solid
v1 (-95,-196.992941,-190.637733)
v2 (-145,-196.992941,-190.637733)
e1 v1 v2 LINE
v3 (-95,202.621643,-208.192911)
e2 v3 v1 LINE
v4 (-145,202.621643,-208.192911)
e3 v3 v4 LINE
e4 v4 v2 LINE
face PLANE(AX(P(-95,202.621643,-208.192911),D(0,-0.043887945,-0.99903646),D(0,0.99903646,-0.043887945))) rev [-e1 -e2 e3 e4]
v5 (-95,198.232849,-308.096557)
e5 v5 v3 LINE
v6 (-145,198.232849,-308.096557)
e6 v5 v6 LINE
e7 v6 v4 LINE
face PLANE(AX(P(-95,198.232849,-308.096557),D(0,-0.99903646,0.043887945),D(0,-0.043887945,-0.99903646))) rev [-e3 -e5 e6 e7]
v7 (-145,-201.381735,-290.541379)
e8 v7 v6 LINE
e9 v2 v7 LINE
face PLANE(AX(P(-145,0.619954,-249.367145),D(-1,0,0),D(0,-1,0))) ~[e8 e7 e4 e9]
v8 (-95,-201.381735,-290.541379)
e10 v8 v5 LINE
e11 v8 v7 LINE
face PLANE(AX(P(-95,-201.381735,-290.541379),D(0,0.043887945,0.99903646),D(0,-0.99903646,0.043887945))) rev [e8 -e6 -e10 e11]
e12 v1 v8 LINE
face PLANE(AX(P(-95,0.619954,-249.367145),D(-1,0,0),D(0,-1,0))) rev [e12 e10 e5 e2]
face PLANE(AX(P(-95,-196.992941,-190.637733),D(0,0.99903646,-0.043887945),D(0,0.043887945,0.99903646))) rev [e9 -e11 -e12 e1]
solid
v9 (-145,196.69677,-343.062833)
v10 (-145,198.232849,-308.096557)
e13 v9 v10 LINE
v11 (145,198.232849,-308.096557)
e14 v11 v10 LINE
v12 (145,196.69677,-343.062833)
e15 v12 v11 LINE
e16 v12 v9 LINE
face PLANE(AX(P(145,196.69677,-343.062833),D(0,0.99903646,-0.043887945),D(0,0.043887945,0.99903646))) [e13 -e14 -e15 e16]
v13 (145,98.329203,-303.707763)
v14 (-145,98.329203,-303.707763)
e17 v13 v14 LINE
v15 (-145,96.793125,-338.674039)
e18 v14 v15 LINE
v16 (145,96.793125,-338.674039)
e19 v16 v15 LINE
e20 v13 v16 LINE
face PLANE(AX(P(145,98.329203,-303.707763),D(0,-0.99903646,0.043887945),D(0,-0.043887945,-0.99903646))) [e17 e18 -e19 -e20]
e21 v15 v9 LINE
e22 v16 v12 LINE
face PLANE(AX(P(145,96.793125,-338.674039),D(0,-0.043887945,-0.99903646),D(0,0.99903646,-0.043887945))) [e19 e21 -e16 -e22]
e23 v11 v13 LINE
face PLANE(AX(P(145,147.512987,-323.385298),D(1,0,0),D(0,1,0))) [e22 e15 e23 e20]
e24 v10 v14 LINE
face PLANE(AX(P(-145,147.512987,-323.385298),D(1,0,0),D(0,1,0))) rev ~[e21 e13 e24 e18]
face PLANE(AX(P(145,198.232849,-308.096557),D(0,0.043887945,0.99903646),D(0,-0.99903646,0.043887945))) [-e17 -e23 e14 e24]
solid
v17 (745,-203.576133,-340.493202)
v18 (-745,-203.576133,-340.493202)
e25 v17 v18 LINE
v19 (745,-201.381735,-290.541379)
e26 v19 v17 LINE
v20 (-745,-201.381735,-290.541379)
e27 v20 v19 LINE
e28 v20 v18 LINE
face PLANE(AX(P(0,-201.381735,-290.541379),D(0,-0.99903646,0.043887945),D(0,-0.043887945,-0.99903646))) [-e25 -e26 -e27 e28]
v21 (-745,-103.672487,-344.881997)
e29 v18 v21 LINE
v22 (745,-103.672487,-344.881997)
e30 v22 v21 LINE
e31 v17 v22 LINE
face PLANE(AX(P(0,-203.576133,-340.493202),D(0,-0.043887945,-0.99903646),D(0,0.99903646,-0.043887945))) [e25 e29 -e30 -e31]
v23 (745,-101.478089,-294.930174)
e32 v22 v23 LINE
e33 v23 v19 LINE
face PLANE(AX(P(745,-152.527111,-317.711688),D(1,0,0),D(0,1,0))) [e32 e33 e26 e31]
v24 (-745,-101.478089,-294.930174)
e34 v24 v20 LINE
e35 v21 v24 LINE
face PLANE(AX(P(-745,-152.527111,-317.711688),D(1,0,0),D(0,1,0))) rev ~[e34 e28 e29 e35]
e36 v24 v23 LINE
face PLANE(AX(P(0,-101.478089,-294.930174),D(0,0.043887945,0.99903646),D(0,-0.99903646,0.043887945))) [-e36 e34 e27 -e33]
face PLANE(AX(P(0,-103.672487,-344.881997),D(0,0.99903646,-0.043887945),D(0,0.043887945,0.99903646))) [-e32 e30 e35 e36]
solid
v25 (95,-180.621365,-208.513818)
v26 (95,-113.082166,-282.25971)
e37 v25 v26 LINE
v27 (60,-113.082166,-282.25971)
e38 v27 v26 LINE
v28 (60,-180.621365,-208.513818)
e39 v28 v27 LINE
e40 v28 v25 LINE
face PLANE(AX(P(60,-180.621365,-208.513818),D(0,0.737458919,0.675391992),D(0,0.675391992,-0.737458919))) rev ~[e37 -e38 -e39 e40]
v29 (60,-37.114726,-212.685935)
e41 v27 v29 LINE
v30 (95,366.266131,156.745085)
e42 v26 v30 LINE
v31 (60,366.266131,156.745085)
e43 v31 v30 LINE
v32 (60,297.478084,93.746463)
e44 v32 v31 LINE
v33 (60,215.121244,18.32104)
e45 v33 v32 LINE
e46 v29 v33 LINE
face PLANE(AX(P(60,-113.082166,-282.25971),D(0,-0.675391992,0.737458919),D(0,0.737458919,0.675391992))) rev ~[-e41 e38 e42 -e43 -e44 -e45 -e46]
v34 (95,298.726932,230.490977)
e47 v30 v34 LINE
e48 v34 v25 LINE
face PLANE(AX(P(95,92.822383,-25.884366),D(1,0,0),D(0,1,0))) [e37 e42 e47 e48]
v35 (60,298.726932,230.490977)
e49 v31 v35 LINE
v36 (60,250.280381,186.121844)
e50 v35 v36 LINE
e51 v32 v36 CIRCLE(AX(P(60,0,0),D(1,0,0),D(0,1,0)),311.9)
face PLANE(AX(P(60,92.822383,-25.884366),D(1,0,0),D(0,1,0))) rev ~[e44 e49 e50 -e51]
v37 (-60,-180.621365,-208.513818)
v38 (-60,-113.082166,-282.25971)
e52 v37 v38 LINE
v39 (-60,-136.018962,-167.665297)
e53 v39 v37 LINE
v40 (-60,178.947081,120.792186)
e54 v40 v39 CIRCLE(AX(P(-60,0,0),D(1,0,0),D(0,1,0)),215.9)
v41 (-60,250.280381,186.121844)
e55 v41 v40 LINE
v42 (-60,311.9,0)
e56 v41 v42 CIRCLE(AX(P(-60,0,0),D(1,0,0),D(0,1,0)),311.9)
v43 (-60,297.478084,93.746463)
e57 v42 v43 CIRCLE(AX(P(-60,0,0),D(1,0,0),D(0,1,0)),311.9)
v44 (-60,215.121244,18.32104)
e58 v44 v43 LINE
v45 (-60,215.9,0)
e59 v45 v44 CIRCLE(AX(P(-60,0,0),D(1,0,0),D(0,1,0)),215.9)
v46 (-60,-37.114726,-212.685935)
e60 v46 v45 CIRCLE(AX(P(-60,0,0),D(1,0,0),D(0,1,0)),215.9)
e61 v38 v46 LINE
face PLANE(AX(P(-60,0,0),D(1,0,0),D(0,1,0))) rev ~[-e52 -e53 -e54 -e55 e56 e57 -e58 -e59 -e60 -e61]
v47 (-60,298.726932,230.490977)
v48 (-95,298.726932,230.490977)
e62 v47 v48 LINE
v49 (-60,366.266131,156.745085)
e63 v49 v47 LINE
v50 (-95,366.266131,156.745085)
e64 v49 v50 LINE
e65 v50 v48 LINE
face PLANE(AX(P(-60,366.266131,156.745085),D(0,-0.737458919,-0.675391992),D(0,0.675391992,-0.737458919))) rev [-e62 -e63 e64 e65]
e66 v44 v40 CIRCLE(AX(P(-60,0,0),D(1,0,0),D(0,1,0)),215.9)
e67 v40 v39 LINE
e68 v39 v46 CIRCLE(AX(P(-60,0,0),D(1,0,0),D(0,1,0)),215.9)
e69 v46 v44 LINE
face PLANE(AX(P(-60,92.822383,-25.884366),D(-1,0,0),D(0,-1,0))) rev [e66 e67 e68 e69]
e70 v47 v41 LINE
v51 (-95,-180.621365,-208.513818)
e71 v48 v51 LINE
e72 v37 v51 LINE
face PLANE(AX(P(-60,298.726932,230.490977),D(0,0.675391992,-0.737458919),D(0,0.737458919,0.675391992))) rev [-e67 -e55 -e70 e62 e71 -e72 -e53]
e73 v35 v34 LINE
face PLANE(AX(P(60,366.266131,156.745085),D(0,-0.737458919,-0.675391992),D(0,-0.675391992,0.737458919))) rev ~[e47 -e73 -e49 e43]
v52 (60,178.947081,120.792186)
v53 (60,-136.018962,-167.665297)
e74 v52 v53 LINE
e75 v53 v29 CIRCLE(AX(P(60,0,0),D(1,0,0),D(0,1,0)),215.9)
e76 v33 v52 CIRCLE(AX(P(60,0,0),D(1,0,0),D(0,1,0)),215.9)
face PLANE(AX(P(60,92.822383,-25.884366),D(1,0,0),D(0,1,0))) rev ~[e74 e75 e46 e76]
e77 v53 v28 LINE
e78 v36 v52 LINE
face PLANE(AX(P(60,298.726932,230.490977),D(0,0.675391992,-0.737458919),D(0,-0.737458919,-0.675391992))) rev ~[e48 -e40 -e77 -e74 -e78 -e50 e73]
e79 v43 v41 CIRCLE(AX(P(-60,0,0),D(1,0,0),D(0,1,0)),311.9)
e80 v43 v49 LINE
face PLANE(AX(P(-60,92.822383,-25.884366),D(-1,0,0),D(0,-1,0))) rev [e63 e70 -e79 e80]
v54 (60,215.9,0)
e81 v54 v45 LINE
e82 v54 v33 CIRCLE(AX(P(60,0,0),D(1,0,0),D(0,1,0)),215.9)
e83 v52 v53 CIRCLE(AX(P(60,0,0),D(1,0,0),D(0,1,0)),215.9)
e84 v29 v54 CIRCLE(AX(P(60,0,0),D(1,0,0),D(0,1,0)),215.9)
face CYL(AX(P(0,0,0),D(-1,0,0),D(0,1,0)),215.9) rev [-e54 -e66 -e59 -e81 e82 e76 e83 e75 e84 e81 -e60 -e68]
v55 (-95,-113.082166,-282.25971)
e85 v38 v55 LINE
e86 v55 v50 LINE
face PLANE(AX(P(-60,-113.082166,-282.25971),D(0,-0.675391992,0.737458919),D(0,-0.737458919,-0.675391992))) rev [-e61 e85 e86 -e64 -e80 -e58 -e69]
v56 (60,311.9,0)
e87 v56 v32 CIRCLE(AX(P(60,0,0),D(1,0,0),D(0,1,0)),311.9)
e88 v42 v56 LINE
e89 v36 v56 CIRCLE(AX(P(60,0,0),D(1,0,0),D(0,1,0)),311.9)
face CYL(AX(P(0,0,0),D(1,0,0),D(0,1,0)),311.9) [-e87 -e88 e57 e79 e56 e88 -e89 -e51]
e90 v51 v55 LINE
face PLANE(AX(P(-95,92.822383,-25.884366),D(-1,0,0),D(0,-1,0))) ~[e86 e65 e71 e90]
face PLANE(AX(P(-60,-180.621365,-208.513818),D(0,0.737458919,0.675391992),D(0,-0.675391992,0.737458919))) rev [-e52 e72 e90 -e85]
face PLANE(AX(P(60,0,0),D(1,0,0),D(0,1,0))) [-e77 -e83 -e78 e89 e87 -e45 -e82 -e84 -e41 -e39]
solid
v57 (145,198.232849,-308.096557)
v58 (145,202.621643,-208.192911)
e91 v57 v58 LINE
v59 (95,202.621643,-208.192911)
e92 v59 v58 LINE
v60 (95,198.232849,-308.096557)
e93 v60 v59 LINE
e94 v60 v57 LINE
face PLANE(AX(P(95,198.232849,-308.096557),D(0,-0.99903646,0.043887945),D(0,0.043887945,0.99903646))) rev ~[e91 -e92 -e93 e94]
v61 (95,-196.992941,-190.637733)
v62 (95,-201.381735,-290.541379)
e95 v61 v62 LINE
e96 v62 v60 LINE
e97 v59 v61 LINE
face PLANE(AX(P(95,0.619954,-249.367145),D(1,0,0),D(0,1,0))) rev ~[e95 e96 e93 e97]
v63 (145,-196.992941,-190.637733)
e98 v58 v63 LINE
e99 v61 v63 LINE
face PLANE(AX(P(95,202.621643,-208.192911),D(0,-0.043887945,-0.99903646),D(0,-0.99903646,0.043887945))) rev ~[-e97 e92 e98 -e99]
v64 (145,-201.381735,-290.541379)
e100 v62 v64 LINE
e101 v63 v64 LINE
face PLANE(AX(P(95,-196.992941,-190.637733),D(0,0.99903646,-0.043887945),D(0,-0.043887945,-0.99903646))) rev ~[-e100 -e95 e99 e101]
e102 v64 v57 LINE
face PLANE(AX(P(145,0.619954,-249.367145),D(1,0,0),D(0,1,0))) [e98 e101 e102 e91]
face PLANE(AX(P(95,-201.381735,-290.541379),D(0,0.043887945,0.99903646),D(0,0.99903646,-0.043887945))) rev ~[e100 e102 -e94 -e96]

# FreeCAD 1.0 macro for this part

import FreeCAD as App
import Part
import Sketcher
Q = App.Units.Quantity

doc = App.newDocument("Part")
body = doc.addObject("PartDesign::Body", "Body")

# Sketch on YZ plane
sketch1 = doc.addObject("Sketcher::SketchObject", "Sketch")
body.addObject(sketch1)
sketch1.AttachmentSupport = (doc.YZ_Plane, [""])
sketch1.MapMode = "FlatFace"
sketch1.addGeometry([
    Part.Circle(App.Vector(0, 0, 0), App.Vector(0, 0, 1), 312),
    Part.Circle(App.Vector(0, 0, 0), App.Vector(0, 0, 1), 216),
], False)
sketch1.addConstraint([
    Sketcher.Constraint("Coincident", 0, 3, -1, 1),
    Sketcher.Constraint("Coincident", 1, 3, -1, 1),
    Sketcher.Constraint("Diameter", 0, Q("623.8 mm")),
    Sketcher.Constraint("Diameter", 1, Q("431.8 mm")),
])
pad1 = doc.addObject("PartDesign::Pad", "Pad")
body.addObject(pad1)
pad1.Profile = sketch1
pad1.Length = 120
pad1.Midplane = True
body2 = doc.addObject("PartDesign::Body", "Body001")

# Sketch on YZ plane
sketch2 = doc.addObject("Sketcher::SketchObject", "Sketch001")
body2.addObject(sketch2)
sketch2.AttachmentSupport = (doc.getObject("YZ_Plane001"), [""])
sketch2.MapMode = "FlatFace"
sketch2.addGeometry([
    Part.LineSegment(App.Vector(-104, -345, 0), App.Vector(-101, -295, 0)),
    Part.LineSegment(App.Vector(-101, -295, 0), App.Vector(-201, -291, 0)),
    Part.LineSegment(App.Vector(-201, -291, 0), App.Vector(-204, -340, 0)),
    Part.LineSegment(App.Vector(-204, -340, 0), App.Vector(-104, -345, 0)),
], False)
sketch2.addConstraint([
    Sketcher.Constraint("Coincident", 0, 2, 1, 1),
    Sketcher.Constraint("Coincident", 1, 2, 2, 1),
    Sketcher.Constraint("Coincident", 2, 2, 3, 1),
    Sketcher.Constraint("Coincident", 3, 2, 0, 1),
    Sketcher.Constraint("Perpendicular", 0, 1),
    Sketcher.Constraint("Perpendicular", 1, 2),
    Sketcher.Constraint("Perpendicular", 2, 3),
    Sketcher.Constraint("Distance", 0, Q("50 mm")),
    Sketcher.Constraint("Distance", 1, Q("100 mm")),
    Sketcher.Constraint("DistanceX", 0, 2, -1, 1, Q("101.478089 mm")),
    Sketcher.Constraint("DistanceY", 1, 2, -1, 1, Q("290.541379 mm")),
    Sketcher.Constraint("DistanceY", 2, 2, 0, 2, Q("45.563028 mm")),
])
pad2 = doc.addObject("PartDesign::Pad", "Pad001")
body2.addObject(pad2)
pad2.Profile = sketch2
pad2.Length = 1490
pad2.Midplane = True
body3 = doc.addObject("PartDesign::Body", "Body002")

# Sketch on YZ plane
sketch3 = doc.addObject("Sketcher::SketchObject", "Sketch002")
body3.addObject(sketch3)
sketch3.AttachmentSupport = (doc.getObject("YZ_Plane002"), [""])
sketch3.MapMode = "FlatFace"
sketch3.AttachmentOffset = App.Placement(App.Vector(0, 0, 60), App.Rotation())
sketch3.addGeometry([
    Part.LineSegment(App.Vector(299, 230, 0), App.Vector(-181, -209, 0)),
    Part.LineSegment(App.Vector(-181, -209, 0), App.Vector(-113, -282, 0)),
    Part.LineSegment(App.Vector(-113, -282, 0), App.Vector(366, 157, 0)),
    Part.LineSegment(App.Vector(366, 157, 0), App.Vector(299, 230, 0)),
], False)
sketch3.addConstraint([
    Sketcher.Constraint("Coincident", 0, 2, 1, 1),
    Sketcher.Constraint("Coincident", 1, 2, 2, 1),
    Sketcher.Constraint("Coincident", 2, 2, 3, 1),
    Sketcher.Constraint("Coincident", 3, 2, 0, 1),
    Sketcher.Constraint("Perpendicular", 0, 1),
    Sketcher.Constraint("Perpendicular", 1, 2),
    Sketcher.Constraint("Perpendicular", 2, 3),
    Sketcher.Constraint("Distance", 0, Q("650 mm")),
    Sketcher.Constraint("Distance", 1, Q("100 mm")),
    Sketcher.Constraint("DistanceX", 0, 2, 1, 2, Q("67.539199 mm")),
    Sketcher.Constraint("DistanceY", 1, 2, -1, 1, Q("282.25971 mm")),
    Sketcher.Constraint("DistanceX", -1, 1, 2, 2, Q("366.266131 mm")),
])
pad3 = doc.addObject("PartDesign::Pad", "Pad002")
body3.addObject(pad3)
pad3.Profile = sketch3
pad3.Length = 35
doc.recompute()

body4 = doc.addObject("PartDesign::Body", "Body003")
body4.BaseFeature = body3
boolean = doc.addObject("PartDesign::Boolean", "Boolean")
body.addObject(boolean)
boolean.Type = "Fuse"
boolean.addObjects([body4])
doc.recompute()

mirroring = doc.addObject("Part::Mirroring", "Mirroring")
mirroring.Source = body3
mirroring.Base = App.Vector(0, 0, 0)
mirroring.Normal = App.Vector(1, 0, 0)
body5 = doc.addObject("PartDesign::Body", "Body004")
body5.BaseFeature = mirroring
boolean2 = doc.addObject("PartDesign::Boolean", "Boolean001")
body.addObject(boolean2)
boolean2.Type = "Fuse"
boolean2.addObjects([body5])
doc.recompute()
body6 = doc.addObject("PartDesign::Body", "Body005")

# Sketch on YZ plane
sketch4 = doc.addObject("Sketcher::SketchObject", "Sketch003")
body6.addObject(sketch4)
sketch4.AttachmentSupport = (doc.getObject("YZ_Plane005"), [""])
sketch4.MapMode = "FlatFace"
sketch4.AttachmentOffset = App.Placement(App.Vector(0, 0, 95), App.Rotation())
sketch4.addGeometry([
    Part.LineSegment(App.Vector(-201, -291, 0), App.Vector(198, -308, 0)),
    Part.LineSegment(App.Vector(198, -308, 0), App.Vector(203, -208, 0)),
    Part.LineSegment(App.Vector(203, -208, 0), App.Vector(-197, -191, 0)),
    Part.LineSegment(App.Vector(-197, -191, 0), App.Vector(-201, -291, 0)),
], False)
sketch4.addConstraint([
    Sketcher.Constraint("Coincident", 0, 2, 1, 1),
    Sketcher.Constraint("Coincident", 1, 2, 2, 1),
    Sketcher.Constraint("Coincident", 2, 2, 3, 1),
    Sketcher.Constraint("Coincident", 3, 2, 0, 1),
    Sketcher.Constraint("Perpendicular", 0, 1),
    Sketcher.Constraint("Perpendicular", 1, 2),
    Sketcher.Constraint("Perpendicular", 2, 3),
    Sketcher.Constraint("Distance", 0, Q("400 mm")),
    Sketcher.Constraint("Distance", 1, Q("100 mm")),
    Sketcher.Constraint("DistanceX", -1, 1, 0, 2, Q("198.232849 mm")),
    Sketcher.Constraint("DistanceY", 1, 2, -1, 1, Q("208.192911 mm")),
    Sketcher.Constraint("DistanceX", 2, 2, -1, 1, Q("196.992941 mm")),
])
pad4 = doc.addObject("PartDesign::Pad", "Pad003")
body6.addObject(pad4)
pad4.Profile = sketch4
pad4.Length = 50
body7 = doc.addObject("PartDesign::Body", "Body006")
doc.recompute()

mirroring2 = doc.addObject("Part::Mirroring", "Mirroring001")
mirroring2.Source = body6
mirroring2.Base = App.Vector(0, 0, 0)
mirroring2.Normal = App.Vector(1, 0, 0)
body7.BaseFeature = mirroring2
doc.recompute()
body8 = doc.addObject("PartDesign::Body", "Body007")

# Sketch on YZ plane
sketch5 = doc.addObject("Sketcher::SketchObject", "Sketch004")
body8.addObject(sketch5)
sketch5.AttachmentSupport = (doc.getObject("YZ_Plane007"), [""])
sketch5.MapMode = "FlatFace"
sketch5.AttachmentOffset = App.Placement(App.Vector(0, 0, 145), App.Rotation())
sketch5.addGeometry([
    Part.LineSegment(App.Vector(198, -308, 0), App.Vector(98, -304, 0)),
    Part.LineSegment(App.Vector(98, -304, 0), App.Vector(97, -339, 0)),
    Part.LineSegment(App.Vector(97, -339, 0), App.Vector(197, -343, 0)),
    Part.LineSegment(App.Vector(197, -343, 0), App.Vector(198, -308, 0)),
], False)
sketch5.addConstraint([
    Sketcher.Constraint("Coincident", 0, 2, 1, 1),
    Sketcher.Constraint("Coincident", 1, 2, 2, 1),
    Sketcher.Constraint("Coincident", 2, 2, 3, 1),
    Sketcher.Constraint("Coincident", 3, 2, 0, 1),
    Sketcher.Constraint("Perpendicular", 0, 1),
    Sketcher.Constraint("Perpendicular", 1, 2),
    Sketcher.Constraint("Perpendicular", 2, 3),
    Sketcher.Constraint("Distance", 0, Q("100 mm")),
    Sketcher.Constraint("Distance", 1, Q("35 mm")),
    Sketcher.Constraint("DistanceY", 1, 2, -1, 1, Q("338.674039 mm")),
    Sketcher.Constraint("DistanceX", -1, 1, 2, 2, Q("196.69677 mm")),
    Sketcher.Constraint("DistanceX", -1, 1, 3, 2, Q("198.232849 mm")),
])
pad5 = doc.addObject("PartDesign::Pad", "Pad004")
body8.addObject(pad5)
pad5.Profile = sketch5
pad5.Length = 290
pad5.Reversed = True
mirroring.Visibility = False
mirroring2.Visibility = False

doc.recompute()
